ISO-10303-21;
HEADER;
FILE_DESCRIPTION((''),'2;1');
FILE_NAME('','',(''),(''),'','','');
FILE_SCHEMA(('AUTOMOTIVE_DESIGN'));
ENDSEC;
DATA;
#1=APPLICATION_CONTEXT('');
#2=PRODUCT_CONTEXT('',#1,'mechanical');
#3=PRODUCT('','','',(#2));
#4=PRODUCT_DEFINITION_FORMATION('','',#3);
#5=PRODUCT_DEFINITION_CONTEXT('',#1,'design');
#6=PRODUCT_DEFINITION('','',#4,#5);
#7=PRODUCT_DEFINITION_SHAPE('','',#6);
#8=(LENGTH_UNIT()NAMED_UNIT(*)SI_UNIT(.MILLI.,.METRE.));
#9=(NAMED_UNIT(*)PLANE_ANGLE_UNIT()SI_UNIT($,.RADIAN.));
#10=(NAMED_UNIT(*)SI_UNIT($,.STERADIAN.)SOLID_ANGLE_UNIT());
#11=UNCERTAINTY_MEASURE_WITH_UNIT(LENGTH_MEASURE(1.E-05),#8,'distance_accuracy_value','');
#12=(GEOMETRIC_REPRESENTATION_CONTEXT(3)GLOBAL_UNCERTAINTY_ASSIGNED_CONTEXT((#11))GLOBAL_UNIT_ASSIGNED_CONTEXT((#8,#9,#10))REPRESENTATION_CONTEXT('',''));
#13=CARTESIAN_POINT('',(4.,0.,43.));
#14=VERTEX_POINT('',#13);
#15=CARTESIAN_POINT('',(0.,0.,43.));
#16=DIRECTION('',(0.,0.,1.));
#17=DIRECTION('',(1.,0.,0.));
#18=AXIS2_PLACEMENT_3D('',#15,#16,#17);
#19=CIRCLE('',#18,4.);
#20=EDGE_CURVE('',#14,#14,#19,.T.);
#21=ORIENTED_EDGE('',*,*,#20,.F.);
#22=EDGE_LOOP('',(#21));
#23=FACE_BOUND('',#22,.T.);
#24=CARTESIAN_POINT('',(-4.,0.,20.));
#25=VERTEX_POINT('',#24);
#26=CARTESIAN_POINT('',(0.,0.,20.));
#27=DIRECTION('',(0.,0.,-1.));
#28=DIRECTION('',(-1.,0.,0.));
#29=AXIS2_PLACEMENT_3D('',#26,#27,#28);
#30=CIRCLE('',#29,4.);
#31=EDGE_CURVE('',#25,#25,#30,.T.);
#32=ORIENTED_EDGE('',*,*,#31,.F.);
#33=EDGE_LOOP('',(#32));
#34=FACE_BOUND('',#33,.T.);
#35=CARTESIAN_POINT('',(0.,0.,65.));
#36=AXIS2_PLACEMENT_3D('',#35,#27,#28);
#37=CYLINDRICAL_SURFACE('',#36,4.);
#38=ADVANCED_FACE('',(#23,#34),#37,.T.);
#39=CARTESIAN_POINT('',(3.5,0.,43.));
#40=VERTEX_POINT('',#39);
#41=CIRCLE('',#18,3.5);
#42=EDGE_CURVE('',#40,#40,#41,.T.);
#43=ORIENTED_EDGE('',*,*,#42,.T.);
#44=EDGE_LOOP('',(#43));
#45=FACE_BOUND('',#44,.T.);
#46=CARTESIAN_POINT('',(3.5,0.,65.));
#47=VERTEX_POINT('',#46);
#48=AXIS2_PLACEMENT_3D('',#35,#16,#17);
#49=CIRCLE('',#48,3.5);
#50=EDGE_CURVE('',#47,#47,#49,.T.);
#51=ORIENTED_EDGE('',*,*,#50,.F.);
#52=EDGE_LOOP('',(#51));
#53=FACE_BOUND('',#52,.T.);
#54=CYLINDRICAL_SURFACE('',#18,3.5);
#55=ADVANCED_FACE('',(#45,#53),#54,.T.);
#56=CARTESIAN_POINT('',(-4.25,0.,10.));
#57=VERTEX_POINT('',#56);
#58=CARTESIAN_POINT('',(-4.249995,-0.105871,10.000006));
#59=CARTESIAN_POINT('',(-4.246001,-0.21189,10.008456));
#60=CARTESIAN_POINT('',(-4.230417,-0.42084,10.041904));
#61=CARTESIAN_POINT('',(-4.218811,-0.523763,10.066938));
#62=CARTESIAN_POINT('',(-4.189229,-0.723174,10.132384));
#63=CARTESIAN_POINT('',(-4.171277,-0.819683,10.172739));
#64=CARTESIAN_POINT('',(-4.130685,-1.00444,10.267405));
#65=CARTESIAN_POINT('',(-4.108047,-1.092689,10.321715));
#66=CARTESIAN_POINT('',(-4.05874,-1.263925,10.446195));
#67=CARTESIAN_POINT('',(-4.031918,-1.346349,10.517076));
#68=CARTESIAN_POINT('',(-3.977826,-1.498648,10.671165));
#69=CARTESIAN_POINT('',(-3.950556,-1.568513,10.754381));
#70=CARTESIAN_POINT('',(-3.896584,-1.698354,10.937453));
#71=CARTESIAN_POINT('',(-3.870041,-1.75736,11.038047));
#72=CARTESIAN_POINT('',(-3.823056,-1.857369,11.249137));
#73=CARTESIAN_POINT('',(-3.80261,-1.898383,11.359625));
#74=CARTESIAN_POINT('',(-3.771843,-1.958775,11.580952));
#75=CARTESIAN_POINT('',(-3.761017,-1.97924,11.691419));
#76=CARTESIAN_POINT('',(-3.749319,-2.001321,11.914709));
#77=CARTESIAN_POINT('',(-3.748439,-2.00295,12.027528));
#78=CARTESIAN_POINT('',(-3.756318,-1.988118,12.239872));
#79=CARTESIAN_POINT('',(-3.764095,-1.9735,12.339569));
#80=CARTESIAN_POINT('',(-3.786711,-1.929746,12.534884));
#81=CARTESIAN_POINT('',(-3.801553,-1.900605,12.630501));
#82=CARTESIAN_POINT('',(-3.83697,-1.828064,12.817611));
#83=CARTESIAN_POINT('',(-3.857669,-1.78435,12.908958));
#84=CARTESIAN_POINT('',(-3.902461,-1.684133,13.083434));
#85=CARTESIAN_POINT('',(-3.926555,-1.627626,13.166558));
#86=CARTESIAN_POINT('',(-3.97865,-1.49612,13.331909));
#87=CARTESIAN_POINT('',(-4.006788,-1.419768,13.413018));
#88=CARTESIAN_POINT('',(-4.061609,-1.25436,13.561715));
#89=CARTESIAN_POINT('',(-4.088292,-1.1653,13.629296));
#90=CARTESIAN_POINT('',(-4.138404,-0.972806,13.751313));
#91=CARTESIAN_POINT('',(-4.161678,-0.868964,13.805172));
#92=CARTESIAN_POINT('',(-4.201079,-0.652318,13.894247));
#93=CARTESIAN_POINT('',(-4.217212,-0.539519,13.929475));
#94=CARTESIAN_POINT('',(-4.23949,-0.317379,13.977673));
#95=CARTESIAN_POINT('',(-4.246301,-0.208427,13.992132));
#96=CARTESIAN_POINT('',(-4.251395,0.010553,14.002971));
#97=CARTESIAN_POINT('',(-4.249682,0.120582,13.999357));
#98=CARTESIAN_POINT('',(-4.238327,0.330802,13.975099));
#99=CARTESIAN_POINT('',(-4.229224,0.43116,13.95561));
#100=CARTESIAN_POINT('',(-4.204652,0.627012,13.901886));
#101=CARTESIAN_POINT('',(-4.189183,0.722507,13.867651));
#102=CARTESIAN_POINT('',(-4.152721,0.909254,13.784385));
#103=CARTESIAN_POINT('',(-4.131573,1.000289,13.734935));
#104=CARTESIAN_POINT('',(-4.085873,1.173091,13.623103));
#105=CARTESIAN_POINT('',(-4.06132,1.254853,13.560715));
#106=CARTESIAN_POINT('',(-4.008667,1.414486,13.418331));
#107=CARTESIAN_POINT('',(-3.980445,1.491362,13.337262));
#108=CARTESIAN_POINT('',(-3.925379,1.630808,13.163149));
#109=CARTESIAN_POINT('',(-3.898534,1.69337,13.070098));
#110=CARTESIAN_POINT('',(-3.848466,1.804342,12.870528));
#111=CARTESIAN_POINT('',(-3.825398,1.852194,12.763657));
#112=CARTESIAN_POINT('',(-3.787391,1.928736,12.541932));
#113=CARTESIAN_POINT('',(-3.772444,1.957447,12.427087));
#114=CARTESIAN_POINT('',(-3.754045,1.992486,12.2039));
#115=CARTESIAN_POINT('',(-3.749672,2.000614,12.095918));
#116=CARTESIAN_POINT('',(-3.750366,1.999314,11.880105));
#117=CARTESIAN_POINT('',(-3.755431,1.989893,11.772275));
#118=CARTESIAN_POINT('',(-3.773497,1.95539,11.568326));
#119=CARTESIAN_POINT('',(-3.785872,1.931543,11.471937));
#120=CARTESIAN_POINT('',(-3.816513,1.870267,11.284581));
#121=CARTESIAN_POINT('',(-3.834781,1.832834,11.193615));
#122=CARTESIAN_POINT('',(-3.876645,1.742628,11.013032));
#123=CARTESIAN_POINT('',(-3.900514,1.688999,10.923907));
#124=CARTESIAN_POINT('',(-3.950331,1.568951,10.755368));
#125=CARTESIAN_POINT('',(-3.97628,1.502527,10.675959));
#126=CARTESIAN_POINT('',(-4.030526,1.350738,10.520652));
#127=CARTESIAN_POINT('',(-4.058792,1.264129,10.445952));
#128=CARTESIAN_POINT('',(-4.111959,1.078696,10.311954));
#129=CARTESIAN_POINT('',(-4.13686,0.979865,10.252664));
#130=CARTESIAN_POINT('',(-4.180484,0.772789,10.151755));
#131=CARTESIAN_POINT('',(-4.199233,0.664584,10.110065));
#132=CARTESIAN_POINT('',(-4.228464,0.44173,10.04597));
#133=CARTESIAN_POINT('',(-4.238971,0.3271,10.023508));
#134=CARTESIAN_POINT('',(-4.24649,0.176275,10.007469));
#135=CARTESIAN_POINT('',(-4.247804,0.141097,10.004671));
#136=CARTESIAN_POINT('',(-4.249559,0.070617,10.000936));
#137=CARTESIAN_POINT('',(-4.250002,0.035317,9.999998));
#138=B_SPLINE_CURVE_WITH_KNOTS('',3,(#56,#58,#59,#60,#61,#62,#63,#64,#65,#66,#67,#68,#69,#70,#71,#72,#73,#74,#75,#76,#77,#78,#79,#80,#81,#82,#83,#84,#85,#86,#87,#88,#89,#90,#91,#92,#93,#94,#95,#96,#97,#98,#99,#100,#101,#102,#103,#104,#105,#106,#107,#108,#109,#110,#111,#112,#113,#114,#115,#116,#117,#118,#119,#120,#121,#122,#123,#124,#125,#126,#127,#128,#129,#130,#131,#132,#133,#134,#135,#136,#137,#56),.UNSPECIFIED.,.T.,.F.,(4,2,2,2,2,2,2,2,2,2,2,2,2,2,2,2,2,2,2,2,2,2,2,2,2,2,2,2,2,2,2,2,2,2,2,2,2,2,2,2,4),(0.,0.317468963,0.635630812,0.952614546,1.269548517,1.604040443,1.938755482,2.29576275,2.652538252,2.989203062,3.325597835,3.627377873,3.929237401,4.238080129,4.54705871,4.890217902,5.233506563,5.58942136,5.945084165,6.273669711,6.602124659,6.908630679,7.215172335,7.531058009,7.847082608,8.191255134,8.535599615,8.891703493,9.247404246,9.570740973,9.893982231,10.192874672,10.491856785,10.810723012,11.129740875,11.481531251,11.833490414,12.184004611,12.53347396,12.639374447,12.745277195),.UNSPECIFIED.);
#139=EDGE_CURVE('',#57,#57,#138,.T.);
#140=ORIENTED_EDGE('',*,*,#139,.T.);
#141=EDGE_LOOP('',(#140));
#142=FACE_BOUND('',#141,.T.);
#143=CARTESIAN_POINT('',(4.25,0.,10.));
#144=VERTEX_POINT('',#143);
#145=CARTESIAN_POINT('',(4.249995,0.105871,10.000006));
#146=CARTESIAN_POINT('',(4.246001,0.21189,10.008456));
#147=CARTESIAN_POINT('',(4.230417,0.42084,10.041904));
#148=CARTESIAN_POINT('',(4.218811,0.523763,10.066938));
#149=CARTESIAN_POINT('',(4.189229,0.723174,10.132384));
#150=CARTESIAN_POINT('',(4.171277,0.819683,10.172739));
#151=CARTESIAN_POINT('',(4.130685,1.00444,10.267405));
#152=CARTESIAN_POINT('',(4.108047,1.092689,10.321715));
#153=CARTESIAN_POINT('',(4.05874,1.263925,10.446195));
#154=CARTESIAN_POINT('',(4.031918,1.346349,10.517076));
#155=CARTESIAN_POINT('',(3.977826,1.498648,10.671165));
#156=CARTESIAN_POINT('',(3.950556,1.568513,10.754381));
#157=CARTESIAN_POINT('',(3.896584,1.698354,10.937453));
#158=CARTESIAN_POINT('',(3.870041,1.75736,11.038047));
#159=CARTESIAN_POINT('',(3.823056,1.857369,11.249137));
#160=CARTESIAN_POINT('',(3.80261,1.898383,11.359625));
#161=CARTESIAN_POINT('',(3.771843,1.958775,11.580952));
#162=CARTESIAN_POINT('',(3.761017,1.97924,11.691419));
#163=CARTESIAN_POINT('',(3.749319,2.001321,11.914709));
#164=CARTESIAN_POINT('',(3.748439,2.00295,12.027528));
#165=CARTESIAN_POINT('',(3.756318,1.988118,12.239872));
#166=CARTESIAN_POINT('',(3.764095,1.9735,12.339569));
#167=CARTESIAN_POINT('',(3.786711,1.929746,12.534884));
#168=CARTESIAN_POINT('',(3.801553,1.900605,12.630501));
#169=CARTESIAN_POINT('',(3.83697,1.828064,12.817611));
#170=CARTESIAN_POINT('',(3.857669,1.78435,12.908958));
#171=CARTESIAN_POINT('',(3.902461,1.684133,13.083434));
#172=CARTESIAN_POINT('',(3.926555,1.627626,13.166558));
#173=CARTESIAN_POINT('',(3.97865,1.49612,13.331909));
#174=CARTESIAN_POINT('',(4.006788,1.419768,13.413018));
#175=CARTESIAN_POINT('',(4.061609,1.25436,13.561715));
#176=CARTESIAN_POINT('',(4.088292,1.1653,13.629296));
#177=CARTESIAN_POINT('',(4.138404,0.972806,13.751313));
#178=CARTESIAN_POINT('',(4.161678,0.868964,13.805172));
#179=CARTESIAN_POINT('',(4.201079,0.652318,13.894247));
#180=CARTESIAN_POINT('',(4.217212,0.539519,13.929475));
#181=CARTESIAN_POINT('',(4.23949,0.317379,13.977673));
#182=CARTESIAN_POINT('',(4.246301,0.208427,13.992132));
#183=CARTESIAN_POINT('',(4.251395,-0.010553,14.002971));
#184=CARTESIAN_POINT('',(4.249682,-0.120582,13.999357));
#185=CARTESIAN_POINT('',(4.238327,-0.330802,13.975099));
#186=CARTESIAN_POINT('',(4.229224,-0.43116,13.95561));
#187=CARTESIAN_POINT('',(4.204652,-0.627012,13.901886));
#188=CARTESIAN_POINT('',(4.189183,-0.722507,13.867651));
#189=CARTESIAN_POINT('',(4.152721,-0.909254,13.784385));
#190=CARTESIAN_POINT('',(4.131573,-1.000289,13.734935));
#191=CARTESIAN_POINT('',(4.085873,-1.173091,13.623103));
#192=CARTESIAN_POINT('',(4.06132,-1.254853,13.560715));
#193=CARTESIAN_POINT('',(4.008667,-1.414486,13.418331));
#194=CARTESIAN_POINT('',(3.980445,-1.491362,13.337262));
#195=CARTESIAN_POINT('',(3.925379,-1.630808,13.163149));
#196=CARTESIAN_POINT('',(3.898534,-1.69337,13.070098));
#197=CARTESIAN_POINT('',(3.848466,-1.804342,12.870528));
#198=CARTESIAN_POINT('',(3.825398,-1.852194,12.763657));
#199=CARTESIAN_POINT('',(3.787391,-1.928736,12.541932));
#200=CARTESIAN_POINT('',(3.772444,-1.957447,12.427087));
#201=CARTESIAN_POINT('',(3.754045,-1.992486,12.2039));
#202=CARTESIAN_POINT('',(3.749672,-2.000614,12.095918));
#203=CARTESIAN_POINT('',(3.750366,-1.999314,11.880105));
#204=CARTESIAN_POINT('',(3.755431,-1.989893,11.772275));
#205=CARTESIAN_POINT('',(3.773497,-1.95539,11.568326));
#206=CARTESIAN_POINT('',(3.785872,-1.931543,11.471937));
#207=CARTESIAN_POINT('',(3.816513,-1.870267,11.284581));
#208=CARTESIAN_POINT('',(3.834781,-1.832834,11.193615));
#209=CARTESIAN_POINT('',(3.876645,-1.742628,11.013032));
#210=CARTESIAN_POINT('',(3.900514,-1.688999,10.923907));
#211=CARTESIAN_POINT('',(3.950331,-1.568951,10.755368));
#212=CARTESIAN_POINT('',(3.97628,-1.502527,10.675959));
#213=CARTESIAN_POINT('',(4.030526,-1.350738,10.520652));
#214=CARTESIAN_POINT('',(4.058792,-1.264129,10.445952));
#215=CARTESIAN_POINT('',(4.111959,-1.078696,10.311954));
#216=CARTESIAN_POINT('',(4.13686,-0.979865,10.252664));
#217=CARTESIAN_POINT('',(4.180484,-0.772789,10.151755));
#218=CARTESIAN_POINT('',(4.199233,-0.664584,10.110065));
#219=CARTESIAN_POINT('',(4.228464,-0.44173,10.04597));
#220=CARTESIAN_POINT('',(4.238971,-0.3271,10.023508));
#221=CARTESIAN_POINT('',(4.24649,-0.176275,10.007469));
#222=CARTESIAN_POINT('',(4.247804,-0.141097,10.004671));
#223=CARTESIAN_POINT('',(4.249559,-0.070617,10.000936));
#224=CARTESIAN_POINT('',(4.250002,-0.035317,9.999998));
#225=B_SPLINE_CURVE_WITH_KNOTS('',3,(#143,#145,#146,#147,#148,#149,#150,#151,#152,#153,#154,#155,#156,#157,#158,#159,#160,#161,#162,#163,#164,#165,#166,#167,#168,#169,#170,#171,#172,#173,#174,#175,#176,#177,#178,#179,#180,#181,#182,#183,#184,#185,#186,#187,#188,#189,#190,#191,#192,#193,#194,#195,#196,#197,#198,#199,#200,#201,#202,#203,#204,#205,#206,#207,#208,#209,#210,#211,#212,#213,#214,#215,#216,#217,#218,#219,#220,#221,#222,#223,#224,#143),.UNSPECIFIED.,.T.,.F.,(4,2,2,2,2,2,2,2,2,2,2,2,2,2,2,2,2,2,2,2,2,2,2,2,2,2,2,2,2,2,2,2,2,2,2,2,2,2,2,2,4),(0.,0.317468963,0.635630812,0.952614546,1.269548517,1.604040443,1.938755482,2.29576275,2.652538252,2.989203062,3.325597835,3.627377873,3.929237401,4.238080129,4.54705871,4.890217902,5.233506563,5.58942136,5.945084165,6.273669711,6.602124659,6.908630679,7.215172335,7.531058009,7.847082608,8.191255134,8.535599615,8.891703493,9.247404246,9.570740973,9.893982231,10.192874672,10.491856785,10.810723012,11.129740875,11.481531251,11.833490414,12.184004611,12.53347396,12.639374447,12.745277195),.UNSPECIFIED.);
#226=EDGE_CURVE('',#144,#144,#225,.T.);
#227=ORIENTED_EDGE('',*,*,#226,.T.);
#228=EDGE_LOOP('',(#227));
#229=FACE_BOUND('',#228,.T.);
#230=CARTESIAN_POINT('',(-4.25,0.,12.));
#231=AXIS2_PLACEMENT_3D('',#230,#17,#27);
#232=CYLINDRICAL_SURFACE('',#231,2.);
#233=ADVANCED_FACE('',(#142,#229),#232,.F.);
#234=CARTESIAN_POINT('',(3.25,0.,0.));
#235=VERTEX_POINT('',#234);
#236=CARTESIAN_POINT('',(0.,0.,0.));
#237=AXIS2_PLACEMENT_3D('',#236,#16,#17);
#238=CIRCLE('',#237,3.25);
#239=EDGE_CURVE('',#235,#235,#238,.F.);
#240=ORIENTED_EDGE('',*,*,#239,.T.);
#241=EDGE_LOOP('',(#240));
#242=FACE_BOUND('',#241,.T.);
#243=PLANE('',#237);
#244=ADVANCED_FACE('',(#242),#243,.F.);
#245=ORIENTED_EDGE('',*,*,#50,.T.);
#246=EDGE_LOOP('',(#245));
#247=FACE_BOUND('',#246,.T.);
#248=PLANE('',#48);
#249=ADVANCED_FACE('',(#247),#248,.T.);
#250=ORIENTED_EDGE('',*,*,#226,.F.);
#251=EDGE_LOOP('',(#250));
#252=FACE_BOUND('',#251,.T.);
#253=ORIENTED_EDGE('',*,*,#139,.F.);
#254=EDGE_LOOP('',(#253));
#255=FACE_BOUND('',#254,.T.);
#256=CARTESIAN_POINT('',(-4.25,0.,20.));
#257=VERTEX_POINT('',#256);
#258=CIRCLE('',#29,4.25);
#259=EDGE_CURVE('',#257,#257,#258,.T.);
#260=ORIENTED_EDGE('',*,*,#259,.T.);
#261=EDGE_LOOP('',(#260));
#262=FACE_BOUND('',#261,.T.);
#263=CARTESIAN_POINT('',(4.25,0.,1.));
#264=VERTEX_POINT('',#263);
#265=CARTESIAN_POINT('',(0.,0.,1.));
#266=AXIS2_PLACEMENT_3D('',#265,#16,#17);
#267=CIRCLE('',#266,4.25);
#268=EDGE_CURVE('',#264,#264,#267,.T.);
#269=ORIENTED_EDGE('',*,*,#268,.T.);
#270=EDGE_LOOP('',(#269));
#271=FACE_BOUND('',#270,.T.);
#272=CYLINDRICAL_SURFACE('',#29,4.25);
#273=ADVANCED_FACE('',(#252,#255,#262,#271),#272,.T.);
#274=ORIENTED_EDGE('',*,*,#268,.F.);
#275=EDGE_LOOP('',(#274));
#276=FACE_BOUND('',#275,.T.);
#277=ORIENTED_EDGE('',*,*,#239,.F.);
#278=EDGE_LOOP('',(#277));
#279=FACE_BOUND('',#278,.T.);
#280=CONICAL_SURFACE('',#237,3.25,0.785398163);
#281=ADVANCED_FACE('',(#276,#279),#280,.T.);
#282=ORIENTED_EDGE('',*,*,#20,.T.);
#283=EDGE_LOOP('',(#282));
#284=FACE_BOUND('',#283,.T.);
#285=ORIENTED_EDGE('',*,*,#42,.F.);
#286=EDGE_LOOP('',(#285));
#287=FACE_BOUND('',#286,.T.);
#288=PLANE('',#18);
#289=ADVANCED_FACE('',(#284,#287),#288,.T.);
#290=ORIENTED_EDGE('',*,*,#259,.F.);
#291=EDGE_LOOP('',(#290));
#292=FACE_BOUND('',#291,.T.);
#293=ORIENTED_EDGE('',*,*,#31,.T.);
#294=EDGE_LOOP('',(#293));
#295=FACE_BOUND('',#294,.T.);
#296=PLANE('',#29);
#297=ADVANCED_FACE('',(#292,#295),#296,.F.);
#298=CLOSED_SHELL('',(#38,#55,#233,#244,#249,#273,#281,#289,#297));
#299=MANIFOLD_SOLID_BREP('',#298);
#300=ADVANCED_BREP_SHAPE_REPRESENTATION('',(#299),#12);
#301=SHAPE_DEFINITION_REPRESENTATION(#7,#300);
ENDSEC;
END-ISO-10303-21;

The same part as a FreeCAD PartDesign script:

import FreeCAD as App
import Part
import Sketcher
Q = App.Units.Quantity


def edges_at(feature, points):
    """Names of the edges that pass closest to the given points."""
    edges = feature.Shape.Edges
    near = lambda p: min(range(len(edges)), key=lambda i: edges[i].distToShape(Part.Vertex(*p))[0])
    return sorted({f"Edge{near(p) + 1}" for p in points})

doc = App.newDocument("Part")
params = doc.addObject("Spreadsheet::Sheet", "Params")
for row, (alias, value) in enumerate([
    ("sketch1_diameter", "8 mm"),
    ("pad1_length", "65 mm"),
    ("sketch2_diameter", "8.5 mm"),
    ("pad2_length", "20 mm"),
    ("sketch3_diameter", "4 mm"),
    ("chamfer_size", "1 mm"),
    ("sketch4_diameter", "8 mm"),
    ("sketch4_diameter2", "7 mm"),
    ("pocket2_length", "22 mm"),
], start=1):
    params.set(f"A{row}", alias)
    params.set(f"B{row}", "=" + value)
    params.setAlias(f"B{row}", alias)

body = doc.addObject("PartDesign::Body", "Body")

sketch1 = doc.addObject("Sketcher::SketchObject", "Sketch")
body.addObject(sketch1)
sketch1.AttachmentSupport = (doc.XY_Plane, [""])
sketch1.MapMode = "FlatFace"
sketch1.addGeometry(Part.Circle(App.Vector(0, 0, 0), App.Vector(0, 0, 1), 4), False)
sketch1.addConstraint(Sketcher.Constraint("Coincident", 0, 3, -1, 1))
sketch1.addConstraint(Sketcher.Constraint("Diameter", 0, Q("8 mm")))
sketch1.setExpression("Constraints[1]", "Params.sketch1_diameter")
pad1 = doc.addObject("PartDesign::Pad", "Pad")
body.addObject(pad1)
pad1.Profile = sketch1
pad1.setExpression("Length", "Params.pad1_length")

sketch2 = doc.addObject("Sketcher::SketchObject", "Sketch001")
body.addObject(sketch2)
sketch2.AttachmentSupport = (doc.XY_Plane, [""])
sketch2.MapMode = "FlatFace"
sketch2.addGeometry(Part.Circle(App.Vector(0, 0, 0), App.Vector(0, 0, 1), 4.25), False)
sketch2.addConstraint(Sketcher.Constraint("Coincident", 0, 3, -1, 1))
sketch2.addConstraint(Sketcher.Constraint("Diameter", 0, Q("8.5 mm")))
sketch2.setExpression("Constraints[1]", "Params.sketch2_diameter")
pad2 = doc.addObject("PartDesign::Pad", "Pad001")
body.addObject(pad2)
pad2.Profile = sketch2
pad2.setExpression("Length", "Params.pad2_length")

sketch3 = doc.addObject("Sketcher::SketchObject", "Sketch002")
body.addObject(sketch3)
sketch3.AttachmentSupport = (doc.YZ_Plane, [""])
sketch3.MapMode = "FlatFace"
sketch3.addGeometry(Part.Circle(App.Vector(0, 12, 0), App.Vector(0, 0, 1), 2), False)
sketch3.addConstraint(Sketcher.Constraint("PointOnObject", 0, 3, -2))
sketch3.addConstraint(Sketcher.Constraint("Diameter", 0, Q("4 mm")))
sketch3.addConstraint(Sketcher.Constraint("DistanceY", -1, 1, 0, 3, Q("12 mm")))
sketch3.setExpression("Constraints[1]", "Params.sketch3_diameter")
pocket1 = doc.addObject("PartDesign::Pocket", "Pocket")
body.addObject(pocket1)
pocket1.Profile = sketch3
pocket1.Type = "ThroughAll"
pocket1.Midplane = True
doc.recompute()

chamfer = doc.addObject("PartDesign::Chamfer", "Chamfer")
body.addObject(chamfer)
chamfer.Base = (pocket1, edges_at(pocket1, [(4.25, 0, 0)]))
chamfer.setExpression("Size", "Params.chamfer_size")

sketch4 = doc.addObject("Sketcher::SketchObject", "Sketch003")
body.addObject(sketch4)
sketch4.AttachmentSupport = (doc.XY_Plane, [""])
sketch4.MapMode = "FlatFace"
sketch4.AttachmentOffset = App.Placement(App.Vector(0, 0, 65), App.Rotation())
sketch4.addGeometry(Part.Circle(App.Vector(0, 0, 0), App.Vector(0, 0, 1), 4), False)
sketch4.addGeometry(Part.Circle(App.Vector(0, 0, 0), App.Vector(0, 0, 1), 3.5), False)
sketch4.addConstraint(Sketcher.Constraint("Coincident", 0, 3, -1, 1))
sketch4.addConstraint(Sketcher.Constraint("Coincident", 1, 3, -1, 1))
sketch4.addConstraint(Sketcher.Constraint("Diameter", 0, Q("8 mm")))
sketch4.addConstraint(Sketcher.Constraint("Diameter", 1, Q("7 mm")))
sketch4.setExpression("Constraints[2]", "Params.sketch4_diameter")
sketch4.setExpression("Constraints[3]", "Params.sketch4_diameter2")
pocket2 = doc.addObject("PartDesign::Pocket", "Pocket001")
body.addObject(pocket2)
pocket2.Profile = sketch4
pocket2.setExpression("Length", "Params.pocket2_length")

doc.recompute()
